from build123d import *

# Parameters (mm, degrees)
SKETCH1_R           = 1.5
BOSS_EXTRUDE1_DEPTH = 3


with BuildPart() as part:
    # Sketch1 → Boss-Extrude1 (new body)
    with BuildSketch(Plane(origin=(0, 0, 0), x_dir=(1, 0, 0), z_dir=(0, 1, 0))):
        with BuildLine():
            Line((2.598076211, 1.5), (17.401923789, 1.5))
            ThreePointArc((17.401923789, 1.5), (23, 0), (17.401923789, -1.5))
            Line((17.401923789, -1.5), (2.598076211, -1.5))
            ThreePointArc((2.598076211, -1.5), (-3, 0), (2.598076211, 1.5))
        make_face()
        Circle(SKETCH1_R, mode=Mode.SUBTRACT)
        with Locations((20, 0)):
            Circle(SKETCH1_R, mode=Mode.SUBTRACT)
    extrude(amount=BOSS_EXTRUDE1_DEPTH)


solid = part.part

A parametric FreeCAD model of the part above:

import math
import FreeCAD as App
import Part
import Sketcher
from FreeCAD import Vector

doc = App.newDocument("Part")
body = doc.addObject("PartDesign::Body", "Body")

# Sketch on XZ plane
sketch1 = doc.addObject("Sketcher::SketchObject", "Sketch")
body.addObject(sketch1)
sketch1.AttachmentSupport = (doc.XZ_Plane, [""])
sketch1.MapMode = "FlatFace"
sketch1.addGeometry(Part.LineSegment(Vector(17.4, -1.5, 0), Vector(2.6, -1.5, 0)), False)
sketch1.addGeometry(Part.ArcOfCircle(Part.Circle(Vector(0, 0, 0), Vector(0, 0, 1), 3), math.radians(30), math.radians(330)), False)
sketch1.addGeometry(Part.LineSegment(Vector(2.6, 1.5, 0), Vector(17.4, 1.5, 0)), False)
sketch1.addGeometry(Part.ArcOfCircle(Part.Circle(Vector(20, 0, 0), Vector(0, 0, 1), 3), math.radians(-150), math.radians(150)), False)
sketch1.addGeometry(Part.Circle(Vector(20, 0, 0), Vector(0, 0, 1), 1.5), False)
sketch1.addGeometry(Part.Circle(Vector(0, 0, 0), Vector(0, 0, 1), 1.5), False)
sketch1.addConstraint(Sketcher.Constraint("Coincident", 0, 2, 1, 2))
sketch1.addConstraint(Sketcher.Constraint("Coincident", 1, 1, 2, 1))
sketch1.addConstraint(Sketcher.Constraint("Coincident", 2, 2, 3, 2))
sketch1.addConstraint(Sketcher.Constraint("Coincident", 3, 1, 0, 1))
sketch1.addConstraint(Sketcher.Constraint("Horizontal", 0))
sketch1.addConstraint(Sketcher.Constraint("Horizontal", 2))
sketch1.addConstraint(Sketcher.Constraint("Coincident", 1, 3, -1, 1))
sketch1.addConstraint(Sketcher.Constraint("Coincident", 5, 3, -1, 1))
sketch1.addConstraint(Sketcher.Constraint("Coincident", 4, 3, 3, 3))
sketch1.addConstraint(Sketcher.Constraint("Equal", 1, 3))
sketch1.addConstraint(Sketcher.Constraint("Equal", 4, 5))
sketch1.addConstraint(Sketcher.Constraint("Symmetric", 2, 2, 3, 1, -1))
sketch1.addConstraint(Sketcher.Constraint("Diameter", 4, 3.0))
sketch1.addConstraint(Sketcher.Constraint("Radius", 1, 3.0))
sketch1.addConstraint(Sketcher.Constraint("DistanceX", -1, 1, 3, 3, 20.0))
sketch1.addConstraint(Sketcher.Constraint("DistanceY", 0, 2, 1, 1, 3.0))
pad1 = doc.addObject("PartDesign::Pad", "Pad")
body.addObject(pad1)
pad1.Profile = sketch1
pad1.Length = 3
pad1.Reversed = True

doc.recompute()
